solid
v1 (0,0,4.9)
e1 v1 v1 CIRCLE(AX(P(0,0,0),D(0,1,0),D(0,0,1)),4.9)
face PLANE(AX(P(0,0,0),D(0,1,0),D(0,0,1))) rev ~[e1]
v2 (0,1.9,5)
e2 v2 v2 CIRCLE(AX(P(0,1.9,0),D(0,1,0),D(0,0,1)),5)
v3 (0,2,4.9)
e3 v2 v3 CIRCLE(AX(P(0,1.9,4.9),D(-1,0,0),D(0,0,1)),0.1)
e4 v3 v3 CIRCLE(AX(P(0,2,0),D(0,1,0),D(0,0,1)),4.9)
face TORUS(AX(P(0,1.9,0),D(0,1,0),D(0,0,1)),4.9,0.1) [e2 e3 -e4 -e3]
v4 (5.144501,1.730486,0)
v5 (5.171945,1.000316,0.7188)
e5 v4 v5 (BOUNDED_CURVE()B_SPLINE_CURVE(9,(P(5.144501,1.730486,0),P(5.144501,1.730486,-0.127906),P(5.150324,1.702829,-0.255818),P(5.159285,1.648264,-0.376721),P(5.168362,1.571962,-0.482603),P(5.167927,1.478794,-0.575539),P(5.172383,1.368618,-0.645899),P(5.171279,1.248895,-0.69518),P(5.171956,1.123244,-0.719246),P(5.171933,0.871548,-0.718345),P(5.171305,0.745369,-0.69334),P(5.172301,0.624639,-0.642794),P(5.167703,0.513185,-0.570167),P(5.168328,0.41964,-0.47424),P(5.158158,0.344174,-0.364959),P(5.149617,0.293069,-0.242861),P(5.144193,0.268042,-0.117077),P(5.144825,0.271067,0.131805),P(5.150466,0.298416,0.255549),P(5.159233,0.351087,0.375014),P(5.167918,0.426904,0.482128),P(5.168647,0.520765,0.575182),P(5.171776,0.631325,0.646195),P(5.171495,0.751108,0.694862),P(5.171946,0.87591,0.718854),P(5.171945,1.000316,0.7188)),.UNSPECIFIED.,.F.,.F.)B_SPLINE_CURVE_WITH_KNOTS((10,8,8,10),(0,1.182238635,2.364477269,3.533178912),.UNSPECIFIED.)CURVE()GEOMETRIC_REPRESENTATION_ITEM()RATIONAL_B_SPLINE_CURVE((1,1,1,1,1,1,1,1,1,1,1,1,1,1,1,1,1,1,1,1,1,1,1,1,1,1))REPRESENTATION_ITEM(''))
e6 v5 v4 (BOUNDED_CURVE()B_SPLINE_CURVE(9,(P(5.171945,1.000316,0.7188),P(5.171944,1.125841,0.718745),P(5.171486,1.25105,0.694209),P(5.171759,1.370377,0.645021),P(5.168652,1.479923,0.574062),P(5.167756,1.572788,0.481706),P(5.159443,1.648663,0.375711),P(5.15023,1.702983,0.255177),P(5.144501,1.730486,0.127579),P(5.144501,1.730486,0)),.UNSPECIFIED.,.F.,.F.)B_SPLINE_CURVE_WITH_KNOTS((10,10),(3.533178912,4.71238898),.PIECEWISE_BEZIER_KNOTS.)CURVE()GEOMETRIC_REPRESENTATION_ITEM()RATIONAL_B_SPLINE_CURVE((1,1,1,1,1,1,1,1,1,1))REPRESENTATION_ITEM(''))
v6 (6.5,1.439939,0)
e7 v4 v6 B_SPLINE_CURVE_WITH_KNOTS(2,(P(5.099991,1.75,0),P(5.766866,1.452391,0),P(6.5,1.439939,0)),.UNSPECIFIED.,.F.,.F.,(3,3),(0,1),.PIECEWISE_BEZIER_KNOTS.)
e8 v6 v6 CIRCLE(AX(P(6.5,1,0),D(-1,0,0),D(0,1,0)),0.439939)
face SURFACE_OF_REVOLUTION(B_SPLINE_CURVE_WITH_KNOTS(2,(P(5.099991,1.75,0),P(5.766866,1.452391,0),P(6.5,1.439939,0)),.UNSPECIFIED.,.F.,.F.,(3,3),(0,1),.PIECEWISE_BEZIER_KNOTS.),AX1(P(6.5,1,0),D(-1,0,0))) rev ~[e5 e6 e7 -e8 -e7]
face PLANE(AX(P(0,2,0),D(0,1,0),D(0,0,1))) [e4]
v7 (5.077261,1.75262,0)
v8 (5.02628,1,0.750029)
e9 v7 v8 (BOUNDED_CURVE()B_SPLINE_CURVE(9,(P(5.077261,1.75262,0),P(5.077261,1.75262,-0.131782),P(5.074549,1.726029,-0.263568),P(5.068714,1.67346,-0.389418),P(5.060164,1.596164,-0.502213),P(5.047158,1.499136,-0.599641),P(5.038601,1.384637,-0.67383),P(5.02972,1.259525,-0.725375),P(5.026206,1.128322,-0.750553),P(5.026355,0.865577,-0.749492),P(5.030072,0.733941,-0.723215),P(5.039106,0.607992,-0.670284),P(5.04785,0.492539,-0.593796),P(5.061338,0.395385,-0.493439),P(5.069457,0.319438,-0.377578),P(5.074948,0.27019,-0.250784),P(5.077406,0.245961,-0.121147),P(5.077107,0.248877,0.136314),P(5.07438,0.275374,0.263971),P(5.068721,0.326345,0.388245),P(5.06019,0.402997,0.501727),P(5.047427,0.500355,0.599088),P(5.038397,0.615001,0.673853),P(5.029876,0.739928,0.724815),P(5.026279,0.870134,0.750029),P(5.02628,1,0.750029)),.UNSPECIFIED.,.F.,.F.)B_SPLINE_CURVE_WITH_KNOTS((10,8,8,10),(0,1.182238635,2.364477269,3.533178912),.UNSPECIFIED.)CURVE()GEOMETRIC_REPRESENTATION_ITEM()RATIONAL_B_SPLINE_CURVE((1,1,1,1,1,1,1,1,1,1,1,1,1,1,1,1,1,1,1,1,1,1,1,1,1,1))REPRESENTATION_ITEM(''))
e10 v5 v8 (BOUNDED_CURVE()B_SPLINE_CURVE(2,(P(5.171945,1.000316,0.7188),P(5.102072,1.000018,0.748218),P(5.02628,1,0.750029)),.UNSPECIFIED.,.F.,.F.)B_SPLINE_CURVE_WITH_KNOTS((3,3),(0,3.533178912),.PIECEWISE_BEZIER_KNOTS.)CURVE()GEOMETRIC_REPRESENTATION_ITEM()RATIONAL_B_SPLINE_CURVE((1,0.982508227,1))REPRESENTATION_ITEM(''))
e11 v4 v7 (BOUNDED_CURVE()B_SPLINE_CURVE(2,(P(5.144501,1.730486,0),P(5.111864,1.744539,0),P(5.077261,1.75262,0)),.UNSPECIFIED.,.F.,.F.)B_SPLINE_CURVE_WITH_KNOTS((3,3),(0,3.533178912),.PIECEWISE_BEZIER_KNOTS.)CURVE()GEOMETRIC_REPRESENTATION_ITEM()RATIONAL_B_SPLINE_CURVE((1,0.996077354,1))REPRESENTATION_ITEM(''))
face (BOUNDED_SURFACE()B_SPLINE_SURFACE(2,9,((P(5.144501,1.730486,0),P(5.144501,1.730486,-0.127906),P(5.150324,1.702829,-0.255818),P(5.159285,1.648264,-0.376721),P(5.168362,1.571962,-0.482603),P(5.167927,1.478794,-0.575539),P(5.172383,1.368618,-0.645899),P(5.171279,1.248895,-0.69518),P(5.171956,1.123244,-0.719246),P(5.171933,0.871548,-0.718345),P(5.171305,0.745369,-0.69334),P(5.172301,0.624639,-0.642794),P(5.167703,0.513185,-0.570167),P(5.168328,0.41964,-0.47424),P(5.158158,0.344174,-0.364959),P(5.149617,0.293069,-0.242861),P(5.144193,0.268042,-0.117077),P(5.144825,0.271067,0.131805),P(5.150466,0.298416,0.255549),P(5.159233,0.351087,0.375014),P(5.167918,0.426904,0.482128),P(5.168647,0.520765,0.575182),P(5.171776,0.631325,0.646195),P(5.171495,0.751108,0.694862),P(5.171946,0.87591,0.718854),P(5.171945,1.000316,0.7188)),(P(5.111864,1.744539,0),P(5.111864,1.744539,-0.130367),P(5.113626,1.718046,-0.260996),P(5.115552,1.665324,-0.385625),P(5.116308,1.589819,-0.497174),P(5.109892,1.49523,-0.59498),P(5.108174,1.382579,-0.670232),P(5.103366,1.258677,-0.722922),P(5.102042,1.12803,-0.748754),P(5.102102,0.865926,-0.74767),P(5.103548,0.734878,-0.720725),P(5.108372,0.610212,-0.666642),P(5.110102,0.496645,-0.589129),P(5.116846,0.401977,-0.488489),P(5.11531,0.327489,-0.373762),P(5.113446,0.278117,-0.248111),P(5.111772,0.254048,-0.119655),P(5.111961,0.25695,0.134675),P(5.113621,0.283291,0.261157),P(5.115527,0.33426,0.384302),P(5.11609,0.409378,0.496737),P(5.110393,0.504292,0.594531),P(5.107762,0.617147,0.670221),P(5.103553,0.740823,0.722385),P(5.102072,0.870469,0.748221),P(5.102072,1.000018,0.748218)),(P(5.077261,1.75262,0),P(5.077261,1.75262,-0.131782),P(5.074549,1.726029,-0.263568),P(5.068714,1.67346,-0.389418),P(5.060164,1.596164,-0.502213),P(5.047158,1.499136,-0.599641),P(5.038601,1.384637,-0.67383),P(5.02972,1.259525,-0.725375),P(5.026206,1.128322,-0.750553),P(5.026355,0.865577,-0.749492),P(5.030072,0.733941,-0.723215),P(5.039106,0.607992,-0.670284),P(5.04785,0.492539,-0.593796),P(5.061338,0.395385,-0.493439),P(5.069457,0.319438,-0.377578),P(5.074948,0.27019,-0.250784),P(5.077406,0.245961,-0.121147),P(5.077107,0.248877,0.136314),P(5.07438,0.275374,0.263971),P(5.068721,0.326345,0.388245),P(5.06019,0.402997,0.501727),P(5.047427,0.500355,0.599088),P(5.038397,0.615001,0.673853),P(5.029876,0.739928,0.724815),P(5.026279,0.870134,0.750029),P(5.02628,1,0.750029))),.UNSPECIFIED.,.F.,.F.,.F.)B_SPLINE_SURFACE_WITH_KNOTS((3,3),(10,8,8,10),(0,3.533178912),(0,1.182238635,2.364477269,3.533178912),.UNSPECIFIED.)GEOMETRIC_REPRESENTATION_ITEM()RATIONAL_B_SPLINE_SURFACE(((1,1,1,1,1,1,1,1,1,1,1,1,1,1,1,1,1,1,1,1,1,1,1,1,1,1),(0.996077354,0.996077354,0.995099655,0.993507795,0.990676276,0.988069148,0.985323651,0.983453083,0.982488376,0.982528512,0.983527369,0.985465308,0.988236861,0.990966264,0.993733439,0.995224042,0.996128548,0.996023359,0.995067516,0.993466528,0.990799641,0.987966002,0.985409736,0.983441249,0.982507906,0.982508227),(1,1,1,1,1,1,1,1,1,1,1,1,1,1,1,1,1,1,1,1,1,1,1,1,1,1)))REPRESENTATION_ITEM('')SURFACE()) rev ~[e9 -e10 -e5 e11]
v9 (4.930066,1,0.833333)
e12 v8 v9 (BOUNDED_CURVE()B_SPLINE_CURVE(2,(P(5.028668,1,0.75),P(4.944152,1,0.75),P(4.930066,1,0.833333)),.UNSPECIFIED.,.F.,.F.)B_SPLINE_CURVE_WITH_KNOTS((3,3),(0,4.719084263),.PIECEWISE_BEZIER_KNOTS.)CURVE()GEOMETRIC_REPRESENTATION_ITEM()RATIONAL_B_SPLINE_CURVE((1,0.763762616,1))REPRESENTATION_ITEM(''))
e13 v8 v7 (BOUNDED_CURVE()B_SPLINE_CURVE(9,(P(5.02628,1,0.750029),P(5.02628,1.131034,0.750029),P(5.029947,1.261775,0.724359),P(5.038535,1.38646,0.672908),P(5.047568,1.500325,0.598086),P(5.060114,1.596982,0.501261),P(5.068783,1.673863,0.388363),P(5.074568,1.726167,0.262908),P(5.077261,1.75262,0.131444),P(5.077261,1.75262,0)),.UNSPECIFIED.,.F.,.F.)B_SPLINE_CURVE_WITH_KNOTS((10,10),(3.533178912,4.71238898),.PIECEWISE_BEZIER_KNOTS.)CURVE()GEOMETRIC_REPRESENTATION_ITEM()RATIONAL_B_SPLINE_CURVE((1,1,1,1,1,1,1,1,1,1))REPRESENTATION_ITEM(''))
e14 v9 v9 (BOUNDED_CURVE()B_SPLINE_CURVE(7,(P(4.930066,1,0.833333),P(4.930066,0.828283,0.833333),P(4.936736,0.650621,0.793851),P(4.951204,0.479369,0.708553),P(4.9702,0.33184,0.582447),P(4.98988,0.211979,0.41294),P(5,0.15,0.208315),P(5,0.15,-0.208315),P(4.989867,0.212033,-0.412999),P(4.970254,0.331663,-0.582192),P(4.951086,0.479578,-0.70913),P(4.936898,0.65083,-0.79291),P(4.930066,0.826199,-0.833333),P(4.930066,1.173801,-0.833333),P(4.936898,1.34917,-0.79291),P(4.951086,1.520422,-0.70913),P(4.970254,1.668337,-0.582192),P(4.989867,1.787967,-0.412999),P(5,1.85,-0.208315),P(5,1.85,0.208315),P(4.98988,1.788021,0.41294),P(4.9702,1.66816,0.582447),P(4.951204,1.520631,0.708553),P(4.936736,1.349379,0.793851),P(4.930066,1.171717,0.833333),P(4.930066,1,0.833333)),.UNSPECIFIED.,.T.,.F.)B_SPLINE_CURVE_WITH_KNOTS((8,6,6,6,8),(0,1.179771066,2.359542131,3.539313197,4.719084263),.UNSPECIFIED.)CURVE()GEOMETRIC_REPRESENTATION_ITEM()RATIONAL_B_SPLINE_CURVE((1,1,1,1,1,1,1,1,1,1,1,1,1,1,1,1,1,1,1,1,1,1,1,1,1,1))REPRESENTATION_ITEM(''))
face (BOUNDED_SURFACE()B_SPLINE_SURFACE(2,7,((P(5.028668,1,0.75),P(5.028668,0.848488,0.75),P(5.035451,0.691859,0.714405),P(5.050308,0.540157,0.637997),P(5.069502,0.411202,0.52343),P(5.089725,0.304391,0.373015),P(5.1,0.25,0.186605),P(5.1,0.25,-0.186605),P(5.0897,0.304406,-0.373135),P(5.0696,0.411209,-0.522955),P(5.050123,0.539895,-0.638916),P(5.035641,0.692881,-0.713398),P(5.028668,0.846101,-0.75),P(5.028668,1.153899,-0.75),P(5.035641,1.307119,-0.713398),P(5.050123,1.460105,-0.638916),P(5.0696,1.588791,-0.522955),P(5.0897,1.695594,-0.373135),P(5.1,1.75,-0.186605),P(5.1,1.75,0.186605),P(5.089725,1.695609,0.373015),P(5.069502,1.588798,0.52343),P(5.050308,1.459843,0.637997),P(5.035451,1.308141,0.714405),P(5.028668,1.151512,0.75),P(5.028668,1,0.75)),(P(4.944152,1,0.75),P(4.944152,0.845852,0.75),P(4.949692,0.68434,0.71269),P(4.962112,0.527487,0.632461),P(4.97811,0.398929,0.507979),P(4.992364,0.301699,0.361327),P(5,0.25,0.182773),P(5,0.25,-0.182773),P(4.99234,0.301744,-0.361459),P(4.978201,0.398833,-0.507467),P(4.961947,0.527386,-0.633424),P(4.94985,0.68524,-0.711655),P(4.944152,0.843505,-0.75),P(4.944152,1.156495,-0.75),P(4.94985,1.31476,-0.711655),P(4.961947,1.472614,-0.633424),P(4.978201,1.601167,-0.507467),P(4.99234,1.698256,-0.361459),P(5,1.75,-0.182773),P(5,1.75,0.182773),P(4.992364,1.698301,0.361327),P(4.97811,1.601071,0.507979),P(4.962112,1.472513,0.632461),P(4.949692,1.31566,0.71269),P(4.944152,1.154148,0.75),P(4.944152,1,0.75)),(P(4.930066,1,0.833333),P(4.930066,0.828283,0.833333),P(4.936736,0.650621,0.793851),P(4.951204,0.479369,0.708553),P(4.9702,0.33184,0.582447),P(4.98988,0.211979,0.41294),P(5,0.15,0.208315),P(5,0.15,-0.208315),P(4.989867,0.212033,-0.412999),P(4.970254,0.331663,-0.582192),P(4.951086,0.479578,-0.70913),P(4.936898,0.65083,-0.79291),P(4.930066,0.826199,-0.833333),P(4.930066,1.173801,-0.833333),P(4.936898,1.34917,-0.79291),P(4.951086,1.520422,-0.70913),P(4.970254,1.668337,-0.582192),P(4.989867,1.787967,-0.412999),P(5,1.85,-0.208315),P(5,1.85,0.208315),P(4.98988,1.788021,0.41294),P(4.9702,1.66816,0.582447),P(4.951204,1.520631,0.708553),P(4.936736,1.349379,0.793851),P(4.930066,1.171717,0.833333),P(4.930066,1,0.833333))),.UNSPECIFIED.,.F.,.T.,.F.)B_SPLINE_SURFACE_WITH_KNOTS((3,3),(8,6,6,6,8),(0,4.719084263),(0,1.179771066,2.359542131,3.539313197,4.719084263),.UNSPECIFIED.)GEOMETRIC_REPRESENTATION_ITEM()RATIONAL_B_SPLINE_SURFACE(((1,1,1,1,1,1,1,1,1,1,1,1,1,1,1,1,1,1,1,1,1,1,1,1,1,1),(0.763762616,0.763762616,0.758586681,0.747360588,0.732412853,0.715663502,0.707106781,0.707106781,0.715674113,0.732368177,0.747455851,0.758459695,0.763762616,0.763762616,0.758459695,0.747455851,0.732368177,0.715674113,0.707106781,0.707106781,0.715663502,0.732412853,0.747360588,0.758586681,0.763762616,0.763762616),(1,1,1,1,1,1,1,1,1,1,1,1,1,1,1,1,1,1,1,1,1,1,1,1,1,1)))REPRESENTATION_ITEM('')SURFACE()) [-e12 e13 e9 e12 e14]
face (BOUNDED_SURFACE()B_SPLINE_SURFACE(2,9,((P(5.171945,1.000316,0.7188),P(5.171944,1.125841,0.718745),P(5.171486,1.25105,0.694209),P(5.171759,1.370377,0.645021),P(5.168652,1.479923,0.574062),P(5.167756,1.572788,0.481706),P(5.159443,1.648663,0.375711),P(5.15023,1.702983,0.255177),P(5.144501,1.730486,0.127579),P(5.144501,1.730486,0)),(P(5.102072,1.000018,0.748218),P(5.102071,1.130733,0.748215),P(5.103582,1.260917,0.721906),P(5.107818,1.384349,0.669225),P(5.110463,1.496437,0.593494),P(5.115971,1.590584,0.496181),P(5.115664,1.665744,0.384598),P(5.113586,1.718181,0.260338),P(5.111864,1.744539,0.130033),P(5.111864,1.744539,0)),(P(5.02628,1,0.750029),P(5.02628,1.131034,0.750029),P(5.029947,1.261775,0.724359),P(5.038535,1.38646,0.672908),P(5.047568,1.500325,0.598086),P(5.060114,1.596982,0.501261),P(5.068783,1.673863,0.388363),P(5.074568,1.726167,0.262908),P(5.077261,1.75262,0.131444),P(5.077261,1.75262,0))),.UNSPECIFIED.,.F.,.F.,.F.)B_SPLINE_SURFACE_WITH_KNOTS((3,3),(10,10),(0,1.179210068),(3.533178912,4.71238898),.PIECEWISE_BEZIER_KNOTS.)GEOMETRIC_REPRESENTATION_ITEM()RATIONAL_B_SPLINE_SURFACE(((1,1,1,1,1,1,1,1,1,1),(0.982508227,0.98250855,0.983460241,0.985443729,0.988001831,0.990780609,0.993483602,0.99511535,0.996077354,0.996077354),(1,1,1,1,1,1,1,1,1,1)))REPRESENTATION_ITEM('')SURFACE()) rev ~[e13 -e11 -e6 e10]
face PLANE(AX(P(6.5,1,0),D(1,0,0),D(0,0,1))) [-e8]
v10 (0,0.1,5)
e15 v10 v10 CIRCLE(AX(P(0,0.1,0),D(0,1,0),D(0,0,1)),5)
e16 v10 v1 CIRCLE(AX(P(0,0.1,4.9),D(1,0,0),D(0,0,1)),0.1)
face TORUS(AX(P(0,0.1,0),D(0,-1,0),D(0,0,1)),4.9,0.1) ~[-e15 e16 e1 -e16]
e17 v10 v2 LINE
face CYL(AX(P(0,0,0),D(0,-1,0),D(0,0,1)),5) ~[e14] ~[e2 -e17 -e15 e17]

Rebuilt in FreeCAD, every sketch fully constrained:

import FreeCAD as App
import Part
import Sketcher

V = App.Vector


def edges_at(feature, points):
    """Names of the edges that pass closest to the given points."""
    edges = feature.Shape.Edges
    near = lambda p: min(range(len(edges)), key=lambda i: edges[i].distToShape(Part.Vertex(*p))[0])
    return sorted({f"Edge{near(p) + 1}" for p in points})

doc = App.newDocument("Part")
params = doc.addObject("Spreadsheet::Sheet", "Params")
for row, (alias, value) in enumerate([
    ("sketch1_diameter", "10 mm"),
    ("pad1_length", "2 mm"),
    ("sketch2_diameter", "1.5 mm"),
    ("pad2_length", "6.5 mm"),
    ("fillet_radius", "0.1 mm"),
    ("groove_angle", "360 deg"),
    ("fillet2_radius", "0.4 mm"),
], start=1):
    params.set(f"A{row}", alias)
    params.set(f"B{row}", "=" + value)
    params.setAlias(f"B{row}", alias)

body = doc.addObject("PartDesign::Body", "Body")

# Sketch on XZ plane
sketch1 = body.newObject("Sketcher::SketchObject", "Sketch")
sketch1.AttachmentSupport = (doc.getObject("XZ_Plane"), [""])
sketch1.MapMode = "FlatFace"
sketch1.addGeometry(Part.Circle(V(0, 0, 0), V(0, 0, 1), 5), False)
sketch1.addConstraint([
    Sketcher.Constraint("Coincident", 0, 3, -1, 1),
    Sketcher.Constraint("Diameter", 0, 10.0),
])
sketch1.setExpression("Constraints[1]", "Params.sketch1_diameter")
pad1 = body.newObject("PartDesign::Pad", "Pad")
pad1.Profile = sketch1
pad1.setExpression("Length", "Params.pad1_length")
pad1.Reversed = True

# Sketch on YZ plane
sketch2 = body.newObject("Sketcher::SketchObject", "Sketch001")
sketch2.AttachmentSupport = (doc.getObject("YZ_Plane"), [""])
sketch2.MapMode = "FlatFace"
sketch2.addGeometry(Part.Circle(V(1, 0, 0), V(0, 0, 1), 0.8), False)
sketch2.addConstraint([
    Sketcher.Constraint("PointOnObject", 0, 3, -1),
    Sketcher.Constraint("Diameter", 0, 1.5),
    Sketcher.Constraint("DistanceX", -1, 1, 0, 3, 1.0),
])
sketch2.setExpression("Constraints[1]", "Params.sketch2_diameter")
pad2 = body.newObject("PartDesign::Pad", "Pad001")
pad2.Profile = sketch2
pad2.setExpression("Length", "Params.pad2_length")
doc.recompute()

fillet = body.newObject("PartDesign::Fillet", "Fillet")
fillet.Base = (pad2, edges_at(pad2, [(0, 0, -5), (0, 2, -5), (4.943, 1, -0.75)]))
fillet.setExpression("Radius", "Params.fillet_radius")

# Sketch on XY plane
sketch3 = body.newObject("Sketcher::SketchObject", "Sketch002")
sketch3.AttachmentSupport = (doc.getObject("XY_Plane"), [""])
sketch3.MapMode = "FlatFace"
sketch3.addGeometry([
    Part.LineSegment(V(6.5, 1.75, 0), V(5.099991, 1.75, 0)),
    Part.BSplineCurve([V(5.099991, 1.75, 0), V(5.766866, 1.452391, 0), V(6.5, 1.439939, 0)], [3, 3], [0, 1], False, 2, [1, 1, 1], False),
    Part.LineSegment(V(6.5, 1.439939, 0), V(6.5, 1.75, 0)),
], False)
sketch3.addGeometry(Part.LineSegment(V(6.5, 1, 0), V(5.099991, 1, 0)), True)  # axis
sketch3.addConstraint([
    Sketcher.Constraint("Block", 1),
    Sketcher.Constraint("Coincident", 0, 2, 1, 1),
    Sketcher.Constraint("Coincident", 1, 2, 2, 1),
    Sketcher.Constraint("Coincident", 2, 2, 0, 1),
    Sketcher.Constraint("Horizontal", 0),
    Sketcher.Constraint("Vertical", 2),
    Sketcher.Constraint("Horizontal", 3),
    Sketcher.Constraint("Vertical", 2, 2, 3, 1),
    Sketcher.Constraint("Vertical", 0, 2, 3, 2),
    Sketcher.Constraint("DistanceY", -1, 1, 3, 1, 1.0),
])
groove = body.newObject("PartDesign::Groove", "Groove")
groove.Profile = sketch3
groove.ReferenceAxis = (sketch3, ["Axis0"])
groove.setExpression("Angle", "Params.groove_angle")
doc.recompute()

fillet2 = body.newObject("PartDesign::Fillet", "Fillet001")
fillet2.Base = (groove, edges_at(groove, [(5.1, 0.996, -0.75), (5.1, 1.004, 0.75)]))
fillet2.setExpression("Radius", "Params.fillet2_radius")

doc.recompute()
